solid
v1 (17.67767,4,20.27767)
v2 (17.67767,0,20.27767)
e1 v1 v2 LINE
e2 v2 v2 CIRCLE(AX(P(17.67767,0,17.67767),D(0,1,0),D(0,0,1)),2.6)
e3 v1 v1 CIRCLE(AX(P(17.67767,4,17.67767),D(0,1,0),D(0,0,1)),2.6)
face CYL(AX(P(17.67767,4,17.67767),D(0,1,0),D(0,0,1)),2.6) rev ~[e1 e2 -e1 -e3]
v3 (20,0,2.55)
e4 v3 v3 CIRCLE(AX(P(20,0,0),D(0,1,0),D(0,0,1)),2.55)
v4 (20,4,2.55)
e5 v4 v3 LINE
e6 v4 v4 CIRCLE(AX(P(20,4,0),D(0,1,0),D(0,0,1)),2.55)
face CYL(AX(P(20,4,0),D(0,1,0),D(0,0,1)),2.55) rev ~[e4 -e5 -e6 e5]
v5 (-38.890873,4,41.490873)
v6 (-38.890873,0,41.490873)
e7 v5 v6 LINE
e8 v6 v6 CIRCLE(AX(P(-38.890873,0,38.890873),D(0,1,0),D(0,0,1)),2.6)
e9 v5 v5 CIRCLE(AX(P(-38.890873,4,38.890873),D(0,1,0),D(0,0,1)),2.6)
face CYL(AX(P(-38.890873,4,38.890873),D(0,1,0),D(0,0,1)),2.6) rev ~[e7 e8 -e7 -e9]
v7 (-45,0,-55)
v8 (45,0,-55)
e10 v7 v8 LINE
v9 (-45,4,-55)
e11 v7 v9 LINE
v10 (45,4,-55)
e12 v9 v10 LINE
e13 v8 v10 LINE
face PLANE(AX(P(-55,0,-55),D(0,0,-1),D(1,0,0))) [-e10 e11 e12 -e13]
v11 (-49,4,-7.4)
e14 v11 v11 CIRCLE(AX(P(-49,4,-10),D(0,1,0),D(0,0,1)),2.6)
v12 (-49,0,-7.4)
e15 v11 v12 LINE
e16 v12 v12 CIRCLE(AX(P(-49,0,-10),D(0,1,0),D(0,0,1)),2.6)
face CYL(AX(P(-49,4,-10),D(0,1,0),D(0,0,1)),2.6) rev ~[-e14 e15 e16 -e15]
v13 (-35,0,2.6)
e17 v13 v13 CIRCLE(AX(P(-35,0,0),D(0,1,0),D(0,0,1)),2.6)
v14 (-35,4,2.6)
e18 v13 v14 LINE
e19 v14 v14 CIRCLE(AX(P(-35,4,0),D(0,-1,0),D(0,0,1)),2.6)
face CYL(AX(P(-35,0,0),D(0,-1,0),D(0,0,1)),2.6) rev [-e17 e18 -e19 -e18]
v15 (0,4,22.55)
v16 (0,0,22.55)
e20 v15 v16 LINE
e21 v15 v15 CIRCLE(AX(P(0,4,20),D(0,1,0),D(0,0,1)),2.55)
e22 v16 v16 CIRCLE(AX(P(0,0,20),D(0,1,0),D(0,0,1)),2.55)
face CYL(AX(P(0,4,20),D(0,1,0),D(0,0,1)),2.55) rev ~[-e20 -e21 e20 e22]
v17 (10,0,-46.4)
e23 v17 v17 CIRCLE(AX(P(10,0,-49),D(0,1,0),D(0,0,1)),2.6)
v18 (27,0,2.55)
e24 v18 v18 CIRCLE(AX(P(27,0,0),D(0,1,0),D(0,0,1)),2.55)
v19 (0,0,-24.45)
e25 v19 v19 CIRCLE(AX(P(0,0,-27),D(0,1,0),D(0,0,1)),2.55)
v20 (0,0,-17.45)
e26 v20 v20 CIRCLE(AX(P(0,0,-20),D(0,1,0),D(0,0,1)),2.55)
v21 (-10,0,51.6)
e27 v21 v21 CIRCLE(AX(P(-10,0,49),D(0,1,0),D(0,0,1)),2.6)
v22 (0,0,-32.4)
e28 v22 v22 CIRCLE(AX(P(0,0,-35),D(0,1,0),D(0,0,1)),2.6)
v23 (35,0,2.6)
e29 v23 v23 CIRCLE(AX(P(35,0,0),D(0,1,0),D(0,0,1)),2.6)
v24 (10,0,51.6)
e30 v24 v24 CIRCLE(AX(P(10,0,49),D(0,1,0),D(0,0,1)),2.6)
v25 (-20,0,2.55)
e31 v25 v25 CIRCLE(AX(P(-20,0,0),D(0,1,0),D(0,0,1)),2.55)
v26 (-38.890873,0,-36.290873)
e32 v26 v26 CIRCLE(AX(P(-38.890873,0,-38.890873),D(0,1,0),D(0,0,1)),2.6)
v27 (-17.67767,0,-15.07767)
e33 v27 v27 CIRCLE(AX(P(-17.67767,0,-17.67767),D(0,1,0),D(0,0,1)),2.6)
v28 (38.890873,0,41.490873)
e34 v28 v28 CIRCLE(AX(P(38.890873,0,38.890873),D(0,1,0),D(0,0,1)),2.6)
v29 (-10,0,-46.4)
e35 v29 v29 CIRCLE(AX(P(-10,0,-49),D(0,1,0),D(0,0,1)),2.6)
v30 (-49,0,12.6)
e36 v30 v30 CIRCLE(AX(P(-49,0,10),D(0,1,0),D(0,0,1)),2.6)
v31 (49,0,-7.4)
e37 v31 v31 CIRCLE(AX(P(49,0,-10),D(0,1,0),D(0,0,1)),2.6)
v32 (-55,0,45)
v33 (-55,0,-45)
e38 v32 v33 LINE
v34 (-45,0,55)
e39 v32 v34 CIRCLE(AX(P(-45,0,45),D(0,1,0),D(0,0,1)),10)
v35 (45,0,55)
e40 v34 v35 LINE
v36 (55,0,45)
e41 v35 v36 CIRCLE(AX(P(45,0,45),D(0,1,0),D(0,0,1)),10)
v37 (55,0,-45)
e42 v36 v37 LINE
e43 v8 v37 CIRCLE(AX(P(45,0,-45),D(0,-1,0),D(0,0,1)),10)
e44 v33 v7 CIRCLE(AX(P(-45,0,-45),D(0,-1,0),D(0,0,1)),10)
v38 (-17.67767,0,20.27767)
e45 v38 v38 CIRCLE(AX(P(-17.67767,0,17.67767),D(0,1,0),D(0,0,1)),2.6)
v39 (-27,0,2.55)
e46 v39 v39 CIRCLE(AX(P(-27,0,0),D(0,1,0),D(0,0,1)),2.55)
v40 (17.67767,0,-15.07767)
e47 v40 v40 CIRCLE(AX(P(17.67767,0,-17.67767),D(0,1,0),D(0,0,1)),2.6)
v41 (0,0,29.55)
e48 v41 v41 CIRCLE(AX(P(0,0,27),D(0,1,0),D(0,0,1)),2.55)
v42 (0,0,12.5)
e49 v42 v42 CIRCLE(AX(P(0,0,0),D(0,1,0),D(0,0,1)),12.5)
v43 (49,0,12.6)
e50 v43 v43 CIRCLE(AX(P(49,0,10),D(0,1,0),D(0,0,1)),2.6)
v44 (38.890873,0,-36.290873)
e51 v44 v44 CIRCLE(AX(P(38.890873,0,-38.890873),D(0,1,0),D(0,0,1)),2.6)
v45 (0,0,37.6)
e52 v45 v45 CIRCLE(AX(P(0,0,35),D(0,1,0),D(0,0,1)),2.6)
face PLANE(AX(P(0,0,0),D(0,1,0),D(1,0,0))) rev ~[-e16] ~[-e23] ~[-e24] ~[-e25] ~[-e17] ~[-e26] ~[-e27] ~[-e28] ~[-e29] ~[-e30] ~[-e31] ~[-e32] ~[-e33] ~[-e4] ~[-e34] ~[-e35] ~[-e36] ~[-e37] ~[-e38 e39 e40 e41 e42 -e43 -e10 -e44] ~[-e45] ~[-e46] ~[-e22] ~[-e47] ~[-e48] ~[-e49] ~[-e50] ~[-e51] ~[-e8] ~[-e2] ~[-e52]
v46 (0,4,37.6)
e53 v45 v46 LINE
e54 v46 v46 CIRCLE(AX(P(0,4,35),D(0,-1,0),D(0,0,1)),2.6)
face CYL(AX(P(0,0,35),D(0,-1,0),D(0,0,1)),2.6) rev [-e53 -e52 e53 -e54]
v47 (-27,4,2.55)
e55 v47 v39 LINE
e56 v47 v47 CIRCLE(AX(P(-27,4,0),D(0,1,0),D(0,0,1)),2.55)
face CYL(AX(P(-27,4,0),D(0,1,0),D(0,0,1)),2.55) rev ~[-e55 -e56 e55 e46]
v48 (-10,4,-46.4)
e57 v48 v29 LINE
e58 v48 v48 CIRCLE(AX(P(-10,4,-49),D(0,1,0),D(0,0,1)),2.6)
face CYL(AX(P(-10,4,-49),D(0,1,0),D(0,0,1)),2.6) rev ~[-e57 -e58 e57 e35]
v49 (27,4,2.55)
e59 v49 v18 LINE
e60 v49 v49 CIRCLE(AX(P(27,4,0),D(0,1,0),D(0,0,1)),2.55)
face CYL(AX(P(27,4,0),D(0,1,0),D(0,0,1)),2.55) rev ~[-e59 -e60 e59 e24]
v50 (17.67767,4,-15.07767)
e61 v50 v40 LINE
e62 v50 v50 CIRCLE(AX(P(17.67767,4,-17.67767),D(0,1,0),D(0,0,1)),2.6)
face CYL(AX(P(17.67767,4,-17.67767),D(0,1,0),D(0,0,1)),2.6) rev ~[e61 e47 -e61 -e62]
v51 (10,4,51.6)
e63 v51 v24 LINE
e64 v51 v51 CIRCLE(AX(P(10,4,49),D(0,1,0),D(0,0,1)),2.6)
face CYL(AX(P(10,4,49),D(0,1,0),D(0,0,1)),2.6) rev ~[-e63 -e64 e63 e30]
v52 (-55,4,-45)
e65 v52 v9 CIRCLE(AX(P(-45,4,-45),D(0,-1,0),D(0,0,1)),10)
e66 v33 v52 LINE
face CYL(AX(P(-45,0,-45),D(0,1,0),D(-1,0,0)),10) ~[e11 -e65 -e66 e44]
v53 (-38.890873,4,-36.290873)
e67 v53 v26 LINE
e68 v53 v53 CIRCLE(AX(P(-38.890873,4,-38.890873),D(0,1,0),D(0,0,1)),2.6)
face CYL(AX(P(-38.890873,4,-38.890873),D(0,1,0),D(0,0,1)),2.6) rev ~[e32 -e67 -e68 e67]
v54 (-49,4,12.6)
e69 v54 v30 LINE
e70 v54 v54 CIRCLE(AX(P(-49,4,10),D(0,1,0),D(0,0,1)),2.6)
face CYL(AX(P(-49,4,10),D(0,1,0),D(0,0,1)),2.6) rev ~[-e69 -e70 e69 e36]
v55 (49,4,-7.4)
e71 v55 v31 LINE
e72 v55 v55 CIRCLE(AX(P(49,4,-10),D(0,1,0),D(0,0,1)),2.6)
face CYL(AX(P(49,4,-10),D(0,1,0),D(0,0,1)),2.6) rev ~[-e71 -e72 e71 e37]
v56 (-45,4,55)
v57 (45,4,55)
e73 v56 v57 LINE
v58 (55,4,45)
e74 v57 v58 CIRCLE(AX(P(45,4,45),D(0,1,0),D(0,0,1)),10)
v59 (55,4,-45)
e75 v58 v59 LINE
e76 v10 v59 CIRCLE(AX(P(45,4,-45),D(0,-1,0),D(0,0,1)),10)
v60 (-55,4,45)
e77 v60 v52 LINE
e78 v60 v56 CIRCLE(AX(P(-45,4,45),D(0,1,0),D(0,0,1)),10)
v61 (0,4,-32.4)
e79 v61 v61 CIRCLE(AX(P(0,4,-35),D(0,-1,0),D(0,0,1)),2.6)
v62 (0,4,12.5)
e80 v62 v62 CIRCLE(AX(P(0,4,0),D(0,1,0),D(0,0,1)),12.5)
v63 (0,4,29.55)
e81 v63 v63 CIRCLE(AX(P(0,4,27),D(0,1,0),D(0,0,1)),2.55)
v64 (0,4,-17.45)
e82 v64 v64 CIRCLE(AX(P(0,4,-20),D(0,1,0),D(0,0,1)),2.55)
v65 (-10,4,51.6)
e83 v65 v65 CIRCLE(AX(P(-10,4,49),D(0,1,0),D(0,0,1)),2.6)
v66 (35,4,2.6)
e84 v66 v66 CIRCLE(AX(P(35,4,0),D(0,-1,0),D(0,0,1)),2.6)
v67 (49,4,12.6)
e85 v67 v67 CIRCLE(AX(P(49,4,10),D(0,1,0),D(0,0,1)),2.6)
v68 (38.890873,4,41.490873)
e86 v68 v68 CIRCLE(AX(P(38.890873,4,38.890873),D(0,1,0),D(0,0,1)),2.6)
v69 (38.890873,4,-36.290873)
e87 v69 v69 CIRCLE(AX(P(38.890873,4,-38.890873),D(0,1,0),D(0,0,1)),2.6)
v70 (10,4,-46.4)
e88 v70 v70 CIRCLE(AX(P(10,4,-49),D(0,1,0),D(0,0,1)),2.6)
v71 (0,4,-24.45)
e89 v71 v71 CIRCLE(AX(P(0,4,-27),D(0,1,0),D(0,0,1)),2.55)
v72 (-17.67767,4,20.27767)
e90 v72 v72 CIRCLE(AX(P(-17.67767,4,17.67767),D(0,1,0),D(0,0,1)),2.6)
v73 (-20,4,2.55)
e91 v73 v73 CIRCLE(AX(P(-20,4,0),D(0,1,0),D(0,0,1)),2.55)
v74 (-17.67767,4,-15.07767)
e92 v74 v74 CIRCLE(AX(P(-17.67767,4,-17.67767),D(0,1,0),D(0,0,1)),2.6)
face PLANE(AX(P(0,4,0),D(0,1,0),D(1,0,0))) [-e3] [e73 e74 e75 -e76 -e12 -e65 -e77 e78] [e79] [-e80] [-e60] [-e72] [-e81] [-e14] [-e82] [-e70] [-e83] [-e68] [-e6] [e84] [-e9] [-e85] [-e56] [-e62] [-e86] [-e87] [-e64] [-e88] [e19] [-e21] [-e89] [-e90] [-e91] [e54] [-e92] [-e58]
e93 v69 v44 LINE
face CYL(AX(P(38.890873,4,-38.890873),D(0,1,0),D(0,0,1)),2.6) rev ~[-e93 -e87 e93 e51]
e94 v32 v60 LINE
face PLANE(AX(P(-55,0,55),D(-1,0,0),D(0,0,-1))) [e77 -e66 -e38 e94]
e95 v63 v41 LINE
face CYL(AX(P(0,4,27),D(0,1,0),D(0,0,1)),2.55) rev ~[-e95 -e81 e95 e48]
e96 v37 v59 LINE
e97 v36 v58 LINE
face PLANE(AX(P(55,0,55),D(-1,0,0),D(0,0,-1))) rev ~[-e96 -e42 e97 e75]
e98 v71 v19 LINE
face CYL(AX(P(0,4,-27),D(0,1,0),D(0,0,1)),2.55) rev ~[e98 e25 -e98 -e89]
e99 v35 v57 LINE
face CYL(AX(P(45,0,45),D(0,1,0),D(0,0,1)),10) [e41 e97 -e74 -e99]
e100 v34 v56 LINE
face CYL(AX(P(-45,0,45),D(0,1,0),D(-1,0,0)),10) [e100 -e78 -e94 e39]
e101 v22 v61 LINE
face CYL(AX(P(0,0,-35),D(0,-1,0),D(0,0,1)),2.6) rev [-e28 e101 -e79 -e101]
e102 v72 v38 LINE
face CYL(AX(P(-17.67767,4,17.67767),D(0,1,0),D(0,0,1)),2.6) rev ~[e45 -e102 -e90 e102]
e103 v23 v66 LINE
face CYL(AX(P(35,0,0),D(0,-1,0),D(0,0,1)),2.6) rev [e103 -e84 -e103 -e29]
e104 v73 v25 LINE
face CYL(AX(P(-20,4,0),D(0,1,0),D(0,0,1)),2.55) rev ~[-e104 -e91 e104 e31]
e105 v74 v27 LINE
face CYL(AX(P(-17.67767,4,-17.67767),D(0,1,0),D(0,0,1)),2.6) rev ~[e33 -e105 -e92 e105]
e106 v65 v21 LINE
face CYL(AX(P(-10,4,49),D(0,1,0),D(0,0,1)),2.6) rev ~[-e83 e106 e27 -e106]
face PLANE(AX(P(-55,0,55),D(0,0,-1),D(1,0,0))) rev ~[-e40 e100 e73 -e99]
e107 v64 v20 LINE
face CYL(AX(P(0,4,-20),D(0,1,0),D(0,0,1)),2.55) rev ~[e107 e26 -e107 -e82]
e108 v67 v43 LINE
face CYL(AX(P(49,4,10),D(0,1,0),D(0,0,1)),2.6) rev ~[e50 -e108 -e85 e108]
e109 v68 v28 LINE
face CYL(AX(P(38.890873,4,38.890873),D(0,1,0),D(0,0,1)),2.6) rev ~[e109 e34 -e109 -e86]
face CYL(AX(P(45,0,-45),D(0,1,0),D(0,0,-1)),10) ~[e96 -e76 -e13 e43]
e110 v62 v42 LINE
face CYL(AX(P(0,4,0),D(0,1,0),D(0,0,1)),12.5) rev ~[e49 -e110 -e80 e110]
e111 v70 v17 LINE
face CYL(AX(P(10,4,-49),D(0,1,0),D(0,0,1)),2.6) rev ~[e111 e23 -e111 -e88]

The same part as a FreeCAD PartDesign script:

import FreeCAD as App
import Part
import Sketcher


def edges_at(feature, points):
    """Names of the edges that pass closest to the given points."""
    edges = feature.Shape.Edges
    near = lambda p: min(range(len(edges)), key=lambda i: edges[i].distToShape(Part.Vertex(*p))[0])
    return sorted({f"Edge{near(p) + 1}" for p in points})

doc = App.newDocument("Part")
body = doc.addObject("PartDesign::Body", "Body")

# Sketch on XZ plane
sketch1 = body.newObject("Sketcher::SketchObject", "Sketch")
sketch1.AttachmentSupport = (doc.getObject("XZ_Plane"), [""])
sketch1.MapMode = "FlatFace"
sketch1.addGeometry(Part.LineSegment(App.Vector(-55, -55, 0), App.Vector(-55, 55, 0)), False)
sketch1.addGeometry(Part.LineSegment(App.Vector(-55, 55, 0), App.Vector(55, 55, 0)), False)
sketch1.addGeometry(Part.LineSegment(App.Vector(55, 55, 0), App.Vector(55, -55, 0)), False)
sketch1.addGeometry(Part.LineSegment(App.Vector(55, -55, 0), App.Vector(-55, -55, 0)), False)
sketch1.addConstraint(Sketcher.Constraint("Coincident", 0, 2, 1, 1))
sketch1.addConstraint(Sketcher.Constraint("Coincident", 1, 2, 2, 1))
sketch1.addConstraint(Sketcher.Constraint("Coincident", 2, 2, 3, 1))
sketch1.addConstraint(Sketcher.Constraint("Coincident", 3, 2, 0, 1))
sketch1.addConstraint(Sketcher.Constraint("Vertical", 0))
sketch1.addConstraint(Sketcher.Constraint("Horizontal", 1))
sketch1.addConstraint(Sketcher.Constraint("Vertical", 2))
sketch1.addConstraint(Sketcher.Constraint("Horizontal", 3))
sketch1.addConstraint(Sketcher.Constraint("Symmetric", 0, 2, 2, 2, -1, 1))
sketch1.addConstraint(Sketcher.Constraint("Equal", 3, 0))
sketch1.addConstraint(Sketcher.Constraint("DistanceX", 1, 1, 1, 2, 110.0))
pad1 = body.newObject("PartDesign::Pad", "Pad")
pad1.Profile = sketch1
pad1.Length = 4
pad1.Reversed = True

# Sketch on XZ plane
sketch2 = body.newObject("Sketcher::SketchObject", "Sketch001")
sketch2.AttachmentSupport = (doc.getObject("XZ_Plane"), [""])
sketch2.MapMode = "FlatFace"
sketch2.addGeometry(Part.Circle(App.Vector(0, -35, 0), App.Vector(0, 0, 1), 2.6), False)
sketch2.addGeometry(Part.Circle(App.Vector(35, 0, 0), App.Vector(0, 0, 1), 2.6), False)
sketch2.addGeometry(Part.Circle(App.Vector(0, 35, 0), App.Vector(0, 0, 1), 2.6), False)
sketch2.addGeometry(Part.Circle(App.Vector(-35, 0, 0), App.Vector(0, 0, 1), 2.6), False)
sketch2.addConstraint(Sketcher.Constraint("Equal", 0, 1))
sketch2.addConstraint(Sketcher.Constraint("Equal", 1, 2))
sketch2.addConstraint(Sketcher.Constraint("Equal", 2, 3))
sketch2.addConstraint(Sketcher.Constraint("Symmetric", 0, 3, 2, 3, -1, 1))
sketch2.addConstraint(Sketcher.Constraint("Symmetric", 1, 3, 3, 3, -1, 1))
sketch2.addConstraint(Sketcher.Constraint("PointOnObject", 0, 3, -2))
sketch2.addConstraint(Sketcher.Constraint("PointOnObject", 1, 3, -1))
sketch2.addConstraint(Sketcher.Constraint("Diameter", 0, 5.2))
sketch2.addConstraint(Sketcher.Constraint("DistanceY", 0, 3, -1, 1, 35.0))
sketch2.addConstraint(Sketcher.Constraint("DistanceX", -1, 1, 1, 3, 35.0))
pocket1 = body.newObject("PartDesign::Pocket", "Pocket")
pocket1.Profile = sketch2
pocket1.Type = "ThroughAll"

# Sketch on XZ plane
sketch3 = body.newObject("Sketcher::SketchObject", "Sketch002")
sketch3.AttachmentSupport = (doc.getObject("XZ_Plane"), [""])
sketch3.MapMode = "FlatFace"
sketch3.AttachmentOffset = App.Placement(App.Vector(0, 0, -4), App.Rotation())
sketch3.addGeometry(Part.Circle(App.Vector(0, -27, 0), App.Vector(0, 0, 1), 2.55), False)
sketch3.addGeometry(Part.Circle(App.Vector(27, 0, 0), App.Vector(0, 0, 1), 2.55), False)
sketch3.addGeometry(Part.Circle(App.Vector(0, 27, 0), App.Vector(0, 0, 1), 2.55), False)
sketch3.addGeometry(Part.Circle(App.Vector(-27, 0, 0), App.Vector(0, 0, 1), 2.55), False)
sketch3.addConstraint(Sketcher.Constraint("Equal", 0, 1))
sketch3.addConstraint(Sketcher.Constraint("Equal", 1, 2))
sketch3.addConstraint(Sketcher.Constraint("Equal", 2, 3))
sketch3.addConstraint(Sketcher.Constraint("Symmetric", 0, 3, 2, 3, -1, 1))
sketch3.addConstraint(Sketcher.Constraint("Symmetric", 1, 3, 3, 3, -1, 1))
sketch3.addConstraint(Sketcher.Constraint("PointOnObject", 0, 3, -2))
sketch3.addConstraint(Sketcher.Constraint("PointOnObject", 1, 3, -1))
sketch3.addConstraint(Sketcher.Constraint("Diameter", 0, 5.1))
sketch3.addConstraint(Sketcher.Constraint("DistanceY", 0, 3, -1, 1, 27.0))
sketch3.addConstraint(Sketcher.Constraint("DistanceX", -1, 1, 1, 3, 27.0))
pocket2 = body.newObject("PartDesign::Pocket", "Pocket001")
pocket2.Profile = sketch3
pocket2.Type = "ThroughAll"
pocket2.Reversed = True

# Sketch on XZ plane
sketch4 = body.newObject("Sketcher::SketchObject", "Sketch003")
sketch4.AttachmentSupport = (doc.getObject("XZ_Plane"), [""])
sketch4.MapMode = "FlatFace"
sketch4.AttachmentOffset = App.Placement(App.Vector(0, 0, -4), App.Rotation())
sketch4.addGeometry(Part.Circle(App.Vector(-10, -49, 0), App.Vector(0, 0, 1), 2.6), False)
sketch4.addGeometry(Part.Circle(App.Vector(10, -49, 0), App.Vector(0, 0, 1), 2.6), False)
sketch4.addGeometry(Part.Circle(App.Vector(49, -10, 0), App.Vector(0, 0, 1), 2.6), False)
sketch4.addGeometry(Part.Circle(App.Vector(49, 10, 0), App.Vector(0, 0, 1), 2.6), False)
sketch4.addGeometry(Part.Circle(App.Vector(10, 49, 0), App.Vector(0, 0, 1), 2.6), False)
sketch4.addGeometry(Part.Circle(App.Vector(-10, 49, 0), App.Vector(0, 0, 1), 2.6), False)
sketch4.addGeometry(Part.Circle(App.Vector(-49, 10, 0), App.Vector(0, 0, 1), 2.6), False)
sketch4.addGeometry(Part.Circle(App.Vector(-49, -10, 0), App.Vector(0, 0, 1), 2.6), False)
sketch4.addConstraint(Sketcher.Constraint("Equal", 0, 1))
sketch4.addConstraint(Sketcher.Constraint("Equal", 1, 2))
sketch4.addConstraint(Sketcher.Constraint("Equal", 2, 3))
sketch4.addConstraint(Sketcher.Constraint("Equal", 3, 4))
sketch4.addConstraint(Sketcher.Constraint("Equal", 4, 5))
sketch4.addConstraint(Sketcher.Constraint("Equal", 5, 6))
sketch4.addConstraint(Sketcher.Constraint("Equal", 6, 7))
sketch4.addConstraint(Sketcher.Constraint("Symmetric", 0, 3, 4, 3, -1, 1))
sketch4.addConstraint(Sketcher.Constraint("Symmetric", 1, 3, 5, 3, -1, 1))
sketch4.addConstraint(Sketcher.Constraint("Symmetric", 2, 3, 6, 3, -1, 1))
sketch4.addConstraint(Sketcher.Constraint("Symmetric", 3, 3, 7, 3, -1, 1))
sketch4.addConstraint(Sketcher.Constraint("Symmetric", 0, 3, 1, 3, -2))
sketch4.addConstraint(Sketcher.Constraint("Symmetric", 3, 3, 6, 3, -2))
sketch4.addConstraint(Sketcher.Constraint("Diameter", 0, 5.2))
sketch4.addConstraint(Sketcher.Constraint("DistanceX", 0, 3, -1, 1, 10.0))
sketch4.addConstraint(Sketcher.Constraint("DistanceY", 0, 3, -1, 1, 49.0))
sketch4.addConstraint(Sketcher.Constraint("DistanceX", -1, 1, 2, 3, 49.0))
sketch4.addConstraint(Sketcher.Constraint("DistanceY", 2, 3, -1, 1, 10.0))
pocket3 = body.newObject("PartDesign::Pocket", "Pocket002")
pocket3.Profile = sketch4
pocket3.Type = "ThroughAll"
pocket3.Reversed = True

# Sketch on XZ plane
sketch5 = body.newObject("Sketcher::SketchObject", "Sketch004")
sketch5.AttachmentSupport = (doc.getObject("XZ_Plane"), [""])
sketch5.MapMode = "FlatFace"
sketch5.AttachmentOffset = App.Placement(App.Vector(0, 0, -4), App.Rotation())
sketch5.addGeometry(Part.Circle(App.Vector(-38.890873, -38.890873, 0), App.Vector(0, 0, 1), 2.6), False)
sketch5.addGeometry(Part.Circle(App.Vector(38.890873, -38.890873, 0), App.Vector(0, 0, 1), 2.6), False)
sketch5.addGeometry(Part.Circle(App.Vector(38.890873, 38.890873, 0), App.Vector(0, 0, 1), 2.6), False)
sketch5.addGeometry(Part.Circle(App.Vector(-38.890873, 38.890873, 0), App.Vector(0, 0, 1), 2.6), False)
sketch5.addConstraint(Sketcher.Constraint("Equal", 0, 1))
sketch5.addConstraint(Sketcher.Constraint("Equal", 1, 2))
sketch5.addConstraint(Sketcher.Constraint("Equal", 2, 3))
sketch5.addConstraint(Sketcher.Constraint("Symmetric", 0, 3, 2, 3, -1, 1))
sketch5.addConstraint(Sketcher.Constraint("Symmetric", 1, 3, 3, 3, -1, 1))
sketch5.addConstraint(Sketcher.Constraint("Symmetric", 0, 3, 1, 3, -2))
sketch5.addConstraint(Sketcher.Constraint("Diameter", 0, 5.2))
sketch5.addConstraint(Sketcher.Constraint("DistanceX", 0, 3, -1, 1, 38.890873))
sketch5.addConstraint(Sketcher.Constraint("DistanceY", 0, 3, -1, 1, 38.890873))
pocket4 = body.newObject("PartDesign::Pocket", "Pocket003")
pocket4.Profile = sketch5
pocket4.Length = 10
pocket4.Reversed = True

# Sketch on XZ plane
sketch6 = body.newObject("Sketcher::SketchObject", "Sketch005")
sketch6.AttachmentSupport = (doc.getObject("XZ_Plane"), [""])
sketch6.MapMode = "FlatFace"
sketch6.AttachmentOffset = App.Placement(App.Vector(0, 0, -4), App.Rotation())
sketch6.addGeometry(Part.Circle(App.Vector(-17.67767, -17.67767, 0), App.Vector(0, 0, 1), 2.6), False)
sketch6.addGeometry(Part.Circle(App.Vector(17.67767, -17.67767, 0), App.Vector(0, 0, 1), 2.6), False)
sketch6.addGeometry(Part.Circle(App.Vector(17.67767, 17.67767, 0), App.Vector(0, 0, 1), 2.6), False)
sketch6.addGeometry(Part.Circle(App.Vector(-17.67767, 17.67767, 0), App.Vector(0, 0, 1), 2.6), False)
sketch6.addConstraint(Sketcher.Constraint("Equal", 0, 1))
sketch6.addConstraint(Sketcher.Constraint("Equal", 1, 2))
sketch6.addConstraint(Sketcher.Constraint("Equal", 2, 3))
sketch6.addConstraint(Sketcher.Constraint("Symmetric", 0, 3, 2, 3, -1, 1))
sketch6.addConstraint(Sketcher.Constraint("Symmetric", 1, 3, 3, 3, -1, 1))
sketch6.addConstraint(Sketcher.Constraint("Symmetric", 0, 3, 1, 3, -2))
sketch6.addConstraint(Sketcher.Constraint("Diameter", 0, 5.2))
sketch6.addConstraint(Sketcher.Constraint("DistanceX", 0, 3, -1, 1, 17.67767))
sketch6.addConstraint(Sketcher.Constraint("DistanceY", 0, 3, -1, 1, 17.67767))
pocket5 = body.newObject("PartDesign::Pocket", "Pocket004")
pocket5.Profile = sketch6
pocket5.Type = "ThroughAll"
pocket5.Reversed = True

# Sketch on XZ plane
sketch7 = body.newObject("Sketcher::SketchObject", "Sketch006")
sketch7.AttachmentSupport = (doc.getObject("XZ_Plane"), [""])
sketch7.MapMode = "FlatFace"
sketch7.AttachmentOffset = App.Placement(App.Vector(0, 0, -4), App.Rotation())
sketch7.addGeometry(Part.Circle(App.Vector(0, -20, 0), App.Vector(0, 0, 1), 2.55), False)
sketch7.addGeometry(Part.Circle(App.Vector(20, 0, 0), App.Vector(0, 0, 1), 2.55), False)
sketch7.addGeometry(Part.Circle(App.Vector(0, 20, 0), App.Vector(0, 0, 1), 2.55), False)
sketch7.addGeometry(Part.Circle(App.Vector(-20, 0, 0), App.Vector(0, 0, 1), 2.55), False)
sketch7.addConstraint(Sketcher.Constraint("Equal", 0, 1))
sketch7.addConstraint(Sketcher.Constraint("Equal", 1, 2))
sketch7.addConstraint(Sketcher.Constraint("Equal", 2, 3))
sketch7.addConstraint(Sketcher.Constraint("Symmetric", 0, 3, 2, 3, -1, 1))
sketch7.addConstraint(Sketcher.Constraint("Symmetric", 1, 3, 3, 3, -1, 1))
sketch7.addConstraint(Sketcher.Constraint("PointOnObject", 0, 3, -2))
sketch7.addConstraint(Sketcher.Constraint("PointOnObject", 1, 3, -1))
sketch7.addConstraint(Sketcher.Constraint("Diameter", 0, 5.1))
sketch7.addConstraint(Sketcher.Constraint("DistanceY", 0, 3, -1, 1, 20.0))
sketch7.addConstraint(Sketcher.Constraint("DistanceX", -1, 1, 1, 3, 20.0))
pocket6 = body.newObject("PartDesign::Pocket", "Pocket005")
pocket6.Profile = sketch7
pocket6.Type = "ThroughAll"
pocket6.Reversed = True

# Sketch on XZ plane
sketch8 = body.newObject("Sketcher::SketchObject", "Sketch007")
sketch8.AttachmentSupport = (doc.getObject("XZ_Plane"), [""])
sketch8.MapMode = "FlatFace"
sketch8.AttachmentOffset = App.Placement(App.Vector(0, 0, -4), App.Rotation())
sketch8.addGeometry(Part.Circle(App.Vector(0, 0, 0), App.Vector(0, 0, 1), 12.5), False)
sketch8.addConstraint(Sketcher.Constraint("Coincident", 0, 3, -1, 1))
sketch8.addConstraint(Sketcher.Constraint("Diameter", 0, 25.0))
pocket7 = body.newObject("PartDesign::Pocket", "Pocket006")
pocket7.Profile = sketch8
pocket7.Type = "ThroughAll"
pocket7.Reversed = True
doc.recompute()

fillet = body.newObject("PartDesign::Fillet", "Fillet")
fillet.Base = (pocket7, edges_at(pocket7, [
    (55, 2, 55),
    (-55, 2, 55),
    (-55, 2, -55),
    (55, 2, -55),
]))
fillet.Radius = 10

doc.recompute()
